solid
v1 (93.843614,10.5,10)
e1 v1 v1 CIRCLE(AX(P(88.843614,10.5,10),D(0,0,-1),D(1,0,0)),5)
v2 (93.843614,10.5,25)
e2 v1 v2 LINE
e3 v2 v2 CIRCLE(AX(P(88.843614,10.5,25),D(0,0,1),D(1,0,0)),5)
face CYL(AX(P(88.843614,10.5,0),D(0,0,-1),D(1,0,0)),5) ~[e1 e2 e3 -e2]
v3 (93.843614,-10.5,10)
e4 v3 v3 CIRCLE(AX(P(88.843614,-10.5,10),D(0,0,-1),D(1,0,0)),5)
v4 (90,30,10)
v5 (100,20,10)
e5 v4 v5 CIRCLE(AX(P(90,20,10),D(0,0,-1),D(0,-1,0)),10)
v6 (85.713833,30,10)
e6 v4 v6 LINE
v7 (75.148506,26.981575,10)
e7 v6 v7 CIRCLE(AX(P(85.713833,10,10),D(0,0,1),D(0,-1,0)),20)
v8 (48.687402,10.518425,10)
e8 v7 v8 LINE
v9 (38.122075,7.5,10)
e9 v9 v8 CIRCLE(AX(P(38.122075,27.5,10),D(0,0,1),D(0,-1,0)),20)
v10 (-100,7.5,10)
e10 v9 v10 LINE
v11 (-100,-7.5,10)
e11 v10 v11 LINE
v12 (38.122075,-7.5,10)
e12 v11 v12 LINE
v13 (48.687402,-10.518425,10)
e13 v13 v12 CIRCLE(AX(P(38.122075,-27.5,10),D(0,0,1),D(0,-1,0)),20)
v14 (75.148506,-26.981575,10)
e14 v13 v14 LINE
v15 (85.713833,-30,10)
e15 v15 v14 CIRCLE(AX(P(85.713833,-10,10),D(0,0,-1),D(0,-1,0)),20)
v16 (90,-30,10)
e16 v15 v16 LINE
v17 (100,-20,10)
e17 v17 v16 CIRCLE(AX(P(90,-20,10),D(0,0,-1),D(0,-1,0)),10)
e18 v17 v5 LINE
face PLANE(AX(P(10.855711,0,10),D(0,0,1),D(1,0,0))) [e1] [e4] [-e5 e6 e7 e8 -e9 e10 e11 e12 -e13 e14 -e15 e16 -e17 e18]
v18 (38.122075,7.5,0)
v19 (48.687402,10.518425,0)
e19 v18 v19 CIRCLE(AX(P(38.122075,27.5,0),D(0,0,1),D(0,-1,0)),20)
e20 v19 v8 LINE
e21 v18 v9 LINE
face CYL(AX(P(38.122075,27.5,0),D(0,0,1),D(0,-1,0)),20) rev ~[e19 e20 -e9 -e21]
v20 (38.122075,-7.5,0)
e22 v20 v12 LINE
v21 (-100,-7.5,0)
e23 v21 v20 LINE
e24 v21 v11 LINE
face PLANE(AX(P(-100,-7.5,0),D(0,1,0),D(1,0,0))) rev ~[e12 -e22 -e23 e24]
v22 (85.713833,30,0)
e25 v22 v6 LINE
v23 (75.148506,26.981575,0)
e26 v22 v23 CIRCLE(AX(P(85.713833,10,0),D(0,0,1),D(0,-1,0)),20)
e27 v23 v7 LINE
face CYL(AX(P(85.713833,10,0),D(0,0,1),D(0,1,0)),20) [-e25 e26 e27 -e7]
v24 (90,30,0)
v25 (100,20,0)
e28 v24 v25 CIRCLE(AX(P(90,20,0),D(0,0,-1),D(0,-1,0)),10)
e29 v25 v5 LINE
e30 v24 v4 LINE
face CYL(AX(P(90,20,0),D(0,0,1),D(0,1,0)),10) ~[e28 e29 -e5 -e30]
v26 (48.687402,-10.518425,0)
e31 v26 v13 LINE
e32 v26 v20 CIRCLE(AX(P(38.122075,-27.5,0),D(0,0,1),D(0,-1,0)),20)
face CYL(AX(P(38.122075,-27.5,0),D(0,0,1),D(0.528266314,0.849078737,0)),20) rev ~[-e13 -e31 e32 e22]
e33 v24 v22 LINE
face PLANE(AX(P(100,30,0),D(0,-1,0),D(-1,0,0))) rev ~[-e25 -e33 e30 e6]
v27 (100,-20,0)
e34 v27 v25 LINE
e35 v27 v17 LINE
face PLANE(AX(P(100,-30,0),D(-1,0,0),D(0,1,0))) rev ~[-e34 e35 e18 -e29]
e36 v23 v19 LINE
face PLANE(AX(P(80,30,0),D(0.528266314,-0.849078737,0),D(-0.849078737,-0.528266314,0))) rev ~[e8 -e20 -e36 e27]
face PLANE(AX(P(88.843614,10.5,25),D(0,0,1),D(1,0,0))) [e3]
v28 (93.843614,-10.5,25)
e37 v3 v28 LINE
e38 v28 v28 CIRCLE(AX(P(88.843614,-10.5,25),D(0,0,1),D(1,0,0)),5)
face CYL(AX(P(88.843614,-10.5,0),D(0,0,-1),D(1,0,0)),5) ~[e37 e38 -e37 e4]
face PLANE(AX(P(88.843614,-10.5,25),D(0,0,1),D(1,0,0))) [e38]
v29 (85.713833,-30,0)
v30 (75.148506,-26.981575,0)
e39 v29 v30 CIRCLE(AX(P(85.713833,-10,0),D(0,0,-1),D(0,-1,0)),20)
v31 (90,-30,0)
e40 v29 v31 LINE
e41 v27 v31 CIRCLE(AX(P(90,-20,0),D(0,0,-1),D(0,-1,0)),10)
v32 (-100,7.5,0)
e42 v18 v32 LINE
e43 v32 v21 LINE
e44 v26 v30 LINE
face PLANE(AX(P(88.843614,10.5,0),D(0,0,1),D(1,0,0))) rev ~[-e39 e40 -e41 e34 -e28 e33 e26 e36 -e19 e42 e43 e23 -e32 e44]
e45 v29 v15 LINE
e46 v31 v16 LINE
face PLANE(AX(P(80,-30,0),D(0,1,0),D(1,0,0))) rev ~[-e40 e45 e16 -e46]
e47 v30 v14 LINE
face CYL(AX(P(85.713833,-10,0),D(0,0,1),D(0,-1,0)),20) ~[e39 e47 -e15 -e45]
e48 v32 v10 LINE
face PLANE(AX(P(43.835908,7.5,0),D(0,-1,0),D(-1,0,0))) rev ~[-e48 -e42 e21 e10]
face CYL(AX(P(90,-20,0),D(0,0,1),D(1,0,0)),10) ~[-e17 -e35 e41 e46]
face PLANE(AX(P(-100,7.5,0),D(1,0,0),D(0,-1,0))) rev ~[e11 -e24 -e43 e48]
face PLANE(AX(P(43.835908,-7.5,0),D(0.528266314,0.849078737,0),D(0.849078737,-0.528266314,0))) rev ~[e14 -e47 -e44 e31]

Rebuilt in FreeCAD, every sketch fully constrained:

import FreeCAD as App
import Part
import Sketcher


def edges_at(feature, points):
    """Names of the edges that pass closest to the given points."""
    edges = feature.Shape.Edges
    near = lambda p: min(range(len(edges)), key=lambda i: edges[i].distToShape(Part.Vertex(*p))[0])
    return sorted({f"Edge{near(p) + 1}" for p in points})

doc = App.newDocument("Part")
params = doc.addObject("Spreadsheet::Sheet", "Params")
for row, (alias, value) in enumerate([
    ("sketch1_width", "20 mm"),
    ("sketch1_height", "15 mm"),
    ("sketch1_height2", "60 mm"),
    ("pad1_length", "10 mm"),
    ("sketch2_diameter", "10 mm"),
    ("pad2_length", "25 mm"),
    ("sketch3_diameter", "10 mm"),
    ("pad3_length", "25 mm"),
    ("fillet_radius", "10 mm"),
    ("fillet2_radius", "20 mm"),
], start=1):
    params.set(f"A{row}", alias)
    params.set(f"B{row}", "=" + value)
    params.setAlias(f"B{row}", alias)

body = doc.addObject("PartDesign::Body", "Body")

sketch1 = body.newObject("Sketcher::SketchObject", "Sketch")
sketch1.AttachmentSupport = (doc.getObject("XY_Plane"), [""])
sketch1.MapMode = "FlatFace"
sketch1.addGeometry(Part.LineSegment(App.Vector(80, 30, 0), App.Vector(43.835908, 7.5, 0)), False)
sketch1.addGeometry(Part.LineSegment(App.Vector(43.835908, 7.5, 0), App.Vector(-100, 7.5, 0)), False)
sketch1.addGeometry(Part.LineSegment(App.Vector(-100, 7.5, 0), App.Vector(-100, -7.5, 0)), False)
sketch1.addGeometry(Part.LineSegment(App.Vector(-100, -7.5, 0), App.Vector(43.835908, -7.5, 0)), False)
sketch1.addGeometry(Part.LineSegment(App.Vector(43.835908, -7.5, 0), App.Vector(80, -30, 0)), False)
sketch1.addGeometry(Part.LineSegment(App.Vector(80, -30, 0), App.Vector(100, -30, 0)), False)
sketch1.addGeometry(Part.LineSegment(App.Vector(100, -30, 0), App.Vector(100, 30, 0)), False)
sketch1.addGeometry(Part.LineSegment(App.Vector(100, 30, 0), App.Vector(80, 30, 0)), False)
sketch1.addConstraint(Sketcher.Constraint("Coincident", 0, 2, 1, 1))
sketch1.addConstraint(Sketcher.Constraint("Coincident", 1, 2, 2, 1))
sketch1.addConstraint(Sketcher.Constraint("Coincident", 2, 2, 3, 1))
sketch1.addConstraint(Sketcher.Constraint("Coincident", 3, 2, 4, 1))
sketch1.addConstraint(Sketcher.Constraint("Coincident", 4, 2, 5, 1))
sketch1.addConstraint(Sketcher.Constraint("Coincident", 5, 2, 6, 1))
sketch1.addConstraint(Sketcher.Constraint("Coincident", 6, 2, 7, 1))
sketch1.addConstraint(Sketcher.Constraint("Coincident", 7, 2, 0, 1))
sketch1.addConstraint(Sketcher.Constraint("Horizontal", 1))
sketch1.addConstraint(Sketcher.Constraint("Vertical", 2))
sketch1.addConstraint(Sketcher.Constraint("Horizontal", 3))
sketch1.addConstraint(Sketcher.Constraint("Horizontal", 5))
sketch1.addConstraint(Sketcher.Constraint("Vertical", 6))
sketch1.addConstraint(Sketcher.Constraint("Horizontal", 7))
sketch1.addConstraint(Sketcher.Constraint("Symmetric", 0, 2, 3, 2, -1))
sketch1.addConstraint(Sketcher.Constraint("Symmetric", 4, 2, 7, 2, -1))
sketch1.addConstraint(Sketcher.Constraint("DistanceX", 5, 1, 5, 2, 20.0))
sketch1.addConstraint(Sketcher.Constraint("DistanceY", 2, 2, 2, 1, 15.0))
sketch1.addConstraint(Sketcher.Constraint("DistanceY", 6, 1, 6, 2, 60.0))
sketch1.addConstraint(Sketcher.Constraint("DistanceX", 1, 2, -1, 1, 100.0))
sketch1.addConstraint(Sketcher.Constraint("DistanceX", -1, 1, 4, 2, 80.0))
sketch1.addConstraint(Sketcher.Constraint("DistanceX", 1, 2, 1, 1, 143.835908))
sketch1.setExpression("Constraints[16]", "Params.sketch1_width")
sketch1.setExpression("Constraints[17]", "Params.sketch1_height")
sketch1.setExpression("Constraints[18]", "Params.sketch1_height2")
pad1 = body.newObject("PartDesign::Pad", "Pad")
pad1.Profile = sketch1
pad1.setExpression("Length", "Params.pad1_length")

sketch2 = body.newObject("Sketcher::SketchObject", "Sketch001")
sketch2.AttachmentSupport = (doc.getObject("XY_Plane"), [""])
sketch2.MapMode = "FlatFace"
sketch2.addGeometry(Part.Circle(App.Vector(88.843614, -10.5, 0), App.Vector(0, 0, 1), 5), False)
sketch2.addConstraint(Sketcher.Constraint("Diameter", 0, 10.0))
sketch2.addConstraint(Sketcher.Constraint("DistanceY", 0, 3, -1, 1, 10.5))
sketch2.addConstraint(Sketcher.Constraint("DistanceX", -1, 1, 0, 3, 88.843614))
sketch2.setExpression("Constraints[0]", "Params.sketch2_diameter")
pad2 = body.newObject("PartDesign::Pad", "Pad001")
pad2.Profile = sketch2
pad2.setExpression("Length", "Params.pad2_length")

sketch3 = body.newObject("Sketcher::SketchObject", "Sketch002")
sketch3.AttachmentSupport = (doc.getObject("XY_Plane"), [""])
sketch3.MapMode = "FlatFace"
sketch3.addGeometry(Part.Circle(App.Vector(88.843614, 10.5, 0), App.Vector(0, 0, 1), 5), False)
sketch3.addConstraint(Sketcher.Constraint("Diameter", 0, 10.0))
sketch3.addConstraint(Sketcher.Constraint("DistanceY", -1, 1, 0, 3, 10.5))
sketch3.addConstraint(Sketcher.Constraint("DistanceX", -1, 1, 0, 3, 88.843614))
sketch3.setExpression("Constraints[0]", "Params.sketch3_diameter")
pad3 = body.newObject("PartDesign::Pad", "Pad002")
pad3.Profile = sketch3
pad3.setExpression("Length", "Params.pad3_length")
doc.recompute()

fillet = body.newObject("PartDesign::Fillet", "Fillet")
fillet.Base = (pad3, edges_at(pad3, [(100, 30, 5), (100, -30, 5)]))
fillet.setExpression("Radius", "Params.fillet_radius")
doc.recompute()

fillet2 = body.newObject("PartDesign::Fillet", "Fillet001")
fillet2.Base = (fillet, edges_at(fillet, [
    (80, -30, 5),
    (80, 30, 5),
    (43.836, 7.5, 5),
    (43.836, -7.5, 5),
]))
fillet2.setExpression("Radius", "Params.fillet2_radius")

doc.recompute()
